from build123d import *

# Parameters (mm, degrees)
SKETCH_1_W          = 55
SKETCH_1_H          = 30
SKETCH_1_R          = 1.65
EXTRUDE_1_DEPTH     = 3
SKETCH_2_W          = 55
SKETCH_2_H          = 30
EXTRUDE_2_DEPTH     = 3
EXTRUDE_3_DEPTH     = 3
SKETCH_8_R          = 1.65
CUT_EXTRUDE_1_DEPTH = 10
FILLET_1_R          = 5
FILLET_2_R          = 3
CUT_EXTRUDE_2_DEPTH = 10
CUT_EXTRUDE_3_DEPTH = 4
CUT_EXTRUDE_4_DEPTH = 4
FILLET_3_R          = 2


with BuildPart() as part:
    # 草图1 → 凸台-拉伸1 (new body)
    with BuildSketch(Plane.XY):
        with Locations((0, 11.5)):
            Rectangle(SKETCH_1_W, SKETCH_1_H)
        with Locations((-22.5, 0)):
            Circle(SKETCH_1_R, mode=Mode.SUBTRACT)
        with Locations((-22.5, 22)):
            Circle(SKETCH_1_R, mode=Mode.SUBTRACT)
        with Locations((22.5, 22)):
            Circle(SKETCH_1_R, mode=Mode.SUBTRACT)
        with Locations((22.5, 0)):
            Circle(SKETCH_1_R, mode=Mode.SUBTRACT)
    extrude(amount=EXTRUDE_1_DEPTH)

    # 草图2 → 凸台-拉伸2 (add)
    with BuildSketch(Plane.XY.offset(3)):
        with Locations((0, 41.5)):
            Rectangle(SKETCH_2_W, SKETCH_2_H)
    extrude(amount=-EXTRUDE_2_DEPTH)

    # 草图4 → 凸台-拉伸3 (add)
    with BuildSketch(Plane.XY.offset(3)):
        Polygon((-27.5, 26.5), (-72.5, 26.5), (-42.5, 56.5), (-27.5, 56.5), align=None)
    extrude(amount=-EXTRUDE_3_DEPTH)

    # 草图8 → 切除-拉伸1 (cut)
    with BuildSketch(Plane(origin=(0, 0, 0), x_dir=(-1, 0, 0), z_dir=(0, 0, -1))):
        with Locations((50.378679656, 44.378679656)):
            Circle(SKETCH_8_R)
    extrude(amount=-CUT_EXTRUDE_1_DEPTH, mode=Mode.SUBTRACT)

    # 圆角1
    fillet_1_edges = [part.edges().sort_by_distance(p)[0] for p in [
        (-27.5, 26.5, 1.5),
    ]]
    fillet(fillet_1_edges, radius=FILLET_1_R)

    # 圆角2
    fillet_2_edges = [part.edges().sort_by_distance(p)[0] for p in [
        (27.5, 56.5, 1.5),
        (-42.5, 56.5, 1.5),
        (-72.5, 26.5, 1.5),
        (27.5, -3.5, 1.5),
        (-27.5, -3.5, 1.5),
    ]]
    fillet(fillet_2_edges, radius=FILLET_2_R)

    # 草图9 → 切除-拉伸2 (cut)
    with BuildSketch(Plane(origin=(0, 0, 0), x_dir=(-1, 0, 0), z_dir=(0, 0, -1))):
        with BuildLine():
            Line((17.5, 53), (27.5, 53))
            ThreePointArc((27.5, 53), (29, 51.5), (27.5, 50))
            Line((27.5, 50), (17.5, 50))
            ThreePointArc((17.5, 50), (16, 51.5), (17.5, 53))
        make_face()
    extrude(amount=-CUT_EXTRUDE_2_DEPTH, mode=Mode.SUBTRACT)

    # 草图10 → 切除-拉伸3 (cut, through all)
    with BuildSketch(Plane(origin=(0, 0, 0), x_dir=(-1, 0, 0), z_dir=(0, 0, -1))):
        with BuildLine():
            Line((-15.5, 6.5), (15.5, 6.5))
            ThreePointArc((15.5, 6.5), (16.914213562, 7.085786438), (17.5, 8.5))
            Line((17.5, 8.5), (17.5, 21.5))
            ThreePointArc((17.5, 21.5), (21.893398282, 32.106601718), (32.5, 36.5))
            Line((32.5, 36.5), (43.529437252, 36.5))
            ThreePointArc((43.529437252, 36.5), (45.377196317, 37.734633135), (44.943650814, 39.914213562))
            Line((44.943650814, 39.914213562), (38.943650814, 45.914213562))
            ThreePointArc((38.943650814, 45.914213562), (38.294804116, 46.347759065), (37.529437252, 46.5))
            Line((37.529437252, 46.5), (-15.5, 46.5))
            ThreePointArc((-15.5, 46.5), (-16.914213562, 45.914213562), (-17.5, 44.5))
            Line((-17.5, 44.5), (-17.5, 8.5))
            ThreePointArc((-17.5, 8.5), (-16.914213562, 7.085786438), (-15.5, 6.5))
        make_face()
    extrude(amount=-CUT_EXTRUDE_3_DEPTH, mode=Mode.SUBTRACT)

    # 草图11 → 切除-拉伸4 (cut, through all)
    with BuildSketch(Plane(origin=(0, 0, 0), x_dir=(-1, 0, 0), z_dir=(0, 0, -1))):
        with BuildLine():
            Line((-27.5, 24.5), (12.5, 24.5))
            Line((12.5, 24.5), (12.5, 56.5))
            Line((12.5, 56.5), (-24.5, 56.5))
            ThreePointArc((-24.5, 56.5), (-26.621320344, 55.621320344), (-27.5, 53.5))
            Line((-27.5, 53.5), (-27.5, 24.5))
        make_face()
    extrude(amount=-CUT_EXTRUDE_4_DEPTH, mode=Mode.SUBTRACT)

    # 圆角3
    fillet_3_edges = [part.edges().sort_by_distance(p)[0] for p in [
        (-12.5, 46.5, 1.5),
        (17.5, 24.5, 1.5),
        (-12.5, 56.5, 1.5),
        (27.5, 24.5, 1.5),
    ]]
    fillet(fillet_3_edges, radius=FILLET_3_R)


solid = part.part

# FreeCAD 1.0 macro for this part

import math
import FreeCAD as App
import Part
import Sketcher
from FreeCAD import Vector
Q = App.Units.Quantity


def edges_at(feature, points):
    """Names of the edges that pass closest to the given points."""
    edges = feature.Shape.Edges
    near = lambda p: min(range(len(edges)), key=lambda i: edges[i].distToShape(Part.Vertex(*p))[0])
    return sorted({f"Edge{near(p) + 1}" for p in points})

doc = App.newDocument("Part")
body = doc.addObject("PartDesign::Body", "Body")

# Sketch on XY plane
sketch1 = body.newObject("Sketcher::SketchObject", "Sketch")
sketch1.AttachmentSupport = (doc.getObject("XY_Plane"), [""])
sketch1.MapMode = "FlatFace"
sketch1.addGeometry(Part.LineSegment(Vector(-27.5, 26.5, 0), Vector(-27.5, -3.5, 0)), False)
sketch1.addGeometry(Part.LineSegment(Vector(-27.5, -3.5, 0), Vector(27.5, -3.5, 0)), False)
sketch1.addGeometry(Part.LineSegment(Vector(27.5, -3.5, 0), Vector(27.5, 26.5, 0)), False)
sketch1.addGeometry(Part.LineSegment(Vector(27.5, 26.5, 0), Vector(-27.5, 26.5, 0)), False)
sketch1.addGeometry(Part.Circle(Vector(-22.5, 0, 0), Vector(0, 0, 1), 1.65), False)
sketch1.addGeometry(Part.Circle(Vector(22.5, 0, 0), Vector(0, 0, 1), 1.65), False)
sketch1.addGeometry(Part.Circle(Vector(-22.5, 22, 0), Vector(0, 0, 1), 1.65), False)
sketch1.addGeometry(Part.Circle(Vector(22.5, 22, 0), Vector(0, 0, 1), 1.65), False)
sketch1.addConstraint(Sketcher.Constraint("Coincident", 0, 2, 1, 1))
sketch1.addConstraint(Sketcher.Constraint("Coincident", 1, 2, 2, 1))
sketch1.addConstraint(Sketcher.Constraint("Coincident", 2, 2, 3, 1))
sketch1.addConstraint(Sketcher.Constraint("Coincident", 3, 2, 0, 1))
sketch1.addConstraint(Sketcher.Constraint("Vertical", 0))
sketch1.addConstraint(Sketcher.Constraint("Horizontal", 1))
sketch1.addConstraint(Sketcher.Constraint("Vertical", 2))
sketch1.addConstraint(Sketcher.Constraint("Horizontal", 3))
sketch1.addConstraint(Sketcher.Constraint("Equal", 4, 5))
sketch1.addConstraint(Sketcher.Constraint("Equal", 5, 6))
sketch1.addConstraint(Sketcher.Constraint("Equal", 6, 7))
sketch1.addConstraint(Sketcher.Constraint("Symmetric", 4, 3, 5, 3, -1, 1))
sketch1.addConstraint(Sketcher.Constraint("Symmetric", 6, 3, 7, 3, -2))
sketch1.addConstraint(Sketcher.Constraint("PointOnObject", 4, 3, -1))
sketch1.addConstraint(Sketcher.Constraint("Vertical", 4, 3, 6, 3))
sketch1.addConstraint(Sketcher.Constraint("Diameter", 4, Q("3.3 mm")))
sketch1.addConstraint(Sketcher.Constraint("DistanceX", 1, 1, 1, 2, Q("55 mm")))
sketch1.addConstraint(Sketcher.Constraint("DistanceY", 0, 2, 0, 1, Q("30 mm")))
sketch1.addConstraint(Sketcher.Constraint("DistanceY", -1, 1, 6, 3, Q("22 mm")))
sketch1.addConstraint(Sketcher.Constraint("DistanceX", 4, 3, 5, 3, Q("45 mm")))
sketch1.addConstraint(Sketcher.Constraint("DistanceX", 0, 2, 4, 3, Q("5 mm")))
sketch1.addConstraint(Sketcher.Constraint("DistanceY", 0, 2, -1, 1, Q("3.5 mm")))
pad1 = body.newObject("PartDesign::Pad", "Pad")
pad1.Profile = sketch1
pad1.Length = 3

# Sketch on XY plane
sketch2 = body.newObject("Sketcher::SketchObject", "Sketch001")
sketch2.AttachmentSupport = (doc.getObject("XY_Plane"), [""])
sketch2.MapMode = "FlatFace"
sketch2.AttachmentOffset = App.Placement(Vector(0, 0, 3), App.Rotation())
sketch2.addGeometry(Part.LineSegment(Vector(-27.5, 56.5, 0), Vector(-27.5, 26.5, 0)), False)
sketch2.addGeometry(Part.LineSegment(Vector(-27.5, 26.5, 0), Vector(27.5, 26.5, 0)), False)
sketch2.addGeometry(Part.LineSegment(Vector(27.5, 26.5, 0), Vector(27.5, 56.5, 0)), False)
sketch2.addGeometry(Part.LineSegment(Vector(27.5, 56.5, 0), Vector(-27.5, 56.5, 0)), False)
sketch2.addConstraint(Sketcher.Constraint("Coincident", 0, 2, 1, 1))
sketch2.addConstraint(Sketcher.Constraint("Coincident", 1, 2, 2, 1))
sketch2.addConstraint(Sketcher.Constraint("Coincident", 2, 2, 3, 1))
sketch2.addConstraint(Sketcher.Constraint("Coincident", 3, 2, 0, 1))
sketch2.addConstraint(Sketcher.Constraint("Vertical", 0))
sketch2.addConstraint(Sketcher.Constraint("Horizontal", 1))
sketch2.addConstraint(Sketcher.Constraint("Vertical", 2))
sketch2.addConstraint(Sketcher.Constraint("Horizontal", 3))
sketch2.addConstraint(Sketcher.Constraint("DistanceX", 1, 1, 1, 2, Q("55 mm")))
sketch2.addConstraint(Sketcher.Constraint("DistanceY", 0, 2, 0, 1, Q("30 mm")))
sketch2.addConstraint(Sketcher.Constraint("DistanceX", 0, 2, -1, 1, Q("27.5 mm")))
sketch2.addConstraint(Sketcher.Constraint("DistanceY", -1, 1, 0, 2, Q("26.5 mm")))
pad2 = body.newObject("PartDesign::Pad", "Pad001")
pad2.Profile = sketch2
pad2.Length = 3
pad2.Reversed = True

# Sketch on XY plane
sketch3 = body.newObject("Sketcher::SketchObject", "Sketch002")
sketch3.AttachmentSupport = (doc.getObject("XY_Plane"), [""])
sketch3.MapMode = "FlatFace"
sketch3.AttachmentOffset = App.Placement(Vector(0, 0, 3), App.Rotation())
sketch3.addGeometry(Part.LineSegment(Vector(-72.5, 26.5, 0), Vector(-27.5, 26.5, 0)), False)
sketch3.addGeometry(Part.LineSegment(Vector(-27.5, 26.5, 0), Vector(-27.5, 56.5, 0)), False)
sketch3.addGeometry(Part.LineSegment(Vector(-27.5, 56.5, 0), Vector(-42.5, 56.5, 0)), False)
sketch3.addGeometry(Part.LineSegment(Vector(-42.5, 56.5, 0), Vector(-72.5, 26.5, 0)), False)
sketch3.addConstraint(Sketcher.Constraint("Coincident", 0, 2, 1, 1))
sketch3.addConstraint(Sketcher.Constraint("Coincident", 1, 2, 2, 1))
sketch3.addConstraint(Sketcher.Constraint("Coincident", 2, 2, 3, 1))
sketch3.addConstraint(Sketcher.Constraint("Coincident", 3, 2, 0, 1))
sketch3.addConstraint(Sketcher.Constraint("Horizontal", 0))
sketch3.addConstraint(Sketcher.Constraint("Vertical", 1))
sketch3.addConstraint(Sketcher.Constraint("Horizontal", 2))
sketch3.addConstraint(Sketcher.Constraint("DistanceX", 0, 1, 0, 2, Q("45 mm")))
sketch3.addConstraint(Sketcher.Constraint("DistanceX", 2, 2, 2, 1, Q("15 mm")))
sketch3.addConstraint(Sketcher.Constraint("DistanceY", 1, 1, 1, 2, Q("30 mm")))
sketch3.addConstraint(Sketcher.Constraint("DistanceX", 0, 2, -1, 1, Q("27.5 mm")))
sketch3.addConstraint(Sketcher.Constraint("DistanceY", -1, 1, 0, 2, Q("26.5 mm")))
pad3 = body.newObject("PartDesign::Pad", "Pad002")
pad3.Profile = sketch3
pad3.Length = 3
pad3.Reversed = True

# Sketch on XY plane
sketch4 = body.newObject("Sketcher::SketchObject", "Sketch003")
sketch4.AttachmentSupport = (doc.getObject("XY_Plane"), [""])
sketch4.MapMode = "FlatFace"
sketch4.addGeometry(Part.Circle(Vector(-50.37868, 44.37868, 0), Vector(0, 0, 1), 1.65), False)
sketch4.addConstraint(Sketcher.Constraint("Diameter", 0, Q("3.3 mm")))
sketch4.addConstraint(Sketcher.Constraint("DistanceX", 0, 3, -1, 1, Q("50.37868 mm")))
sketch4.addConstraint(Sketcher.Constraint("DistanceY", -1, 1, 0, 3, Q("44.37868 mm")))
pocket1 = body.newObject("PartDesign::Pocket", "Pocket")
pocket1.Profile = sketch4
pocket1.Length = 10
pocket1.Reversed = True
doc.recompute()

fillet = body.newObject("PartDesign::Fillet", "Fillet")
fillet.Base = (pocket1, edges_at(pocket1, [(-27.5, 26.5, 1.5)]))
fillet.Radius = 5
doc.recompute()

fillet2 = body.newObject("PartDesign::Fillet", "Fillet001")
fillet2.Base = (fillet, edges_at(fillet, [
    (27.5, 56.5, 1.5),
    (-42.5, 56.5, 1.5),
    (-72.5, 26.5, 1.5),
    (27.5, -3.5, 1.5),
    (-27.5, -3.5, 1.5),
]))
fillet2.Radius = 3

# Sketch on XY plane
sketch5 = body.newObject("Sketcher::SketchObject", "Sketch004")
sketch5.AttachmentSupport = (doc.getObject("XY_Plane"), [""])
sketch5.MapMode = "FlatFace"
sketch5.addGeometry(Part.LineSegment(Vector(-27.5, 53, 0), Vector(-17.5, 53, 0)), False)
sketch5.addGeometry(Part.ArcOfCircle(Part.Circle(Vector(-17.5, 51.5, 0), Vector(0, 0, 1), 1.5), math.radians(-90), math.radians(90)), False)
sketch5.addGeometry(Part.LineSegment(Vector(-17.5, 50, 0), Vector(-27.5, 50, 0)), False)
sketch5.addGeometry(Part.ArcOfCircle(Part.Circle(Vector(-27.5, 51.5, 0), Vector(0, 0, 1), 1.5), math.radians(90), math.radians(270)), False)
sketch5.addConstraint(Sketcher.Constraint("Tangent", 0, 2, 1, 2))
sketch5.addConstraint(Sketcher.Constraint("Tangent", 1, 1, 2, 1))
sketch5.addConstraint(Sketcher.Constraint("Tangent", 2, 2, 3, 2))
sketch5.addConstraint(Sketcher.Constraint("Tangent", 3, 1, 0, 1))
sketch5.addConstraint(Sketcher.Constraint("Horizontal", 0))
sketch5.addConstraint(Sketcher.Constraint("Horizontal", 2))
sketch5.addConstraint(Sketcher.Constraint("Radius", 1, Q("1.5 mm")))
sketch5.addConstraint(Sketcher.Constraint("DistanceX", 0, 1, 0, 2, Q("10 mm")))
sketch5.addConstraint(Sketcher.Constraint("DistanceY", -1, 1, 0, 2, Q("53 mm")))
sketch5.addConstraint(Sketcher.Constraint("DistanceX", 1, 3, -1, 1, Q("17.5 mm")))
pocket2 = body.newObject("PartDesign::Pocket", "Pocket001")
pocket2.Profile = sketch5
pocket2.Length = 10
pocket2.Reversed = True

# Sketch on XY plane
sketch6 = body.newObject("Sketcher::SketchObject", "Sketch005")
sketch6.AttachmentSupport = (doc.getObject("XY_Plane"), [""])
sketch6.MapMode = "FlatFace"
sketch6.addGeometry(Part.LineSegment(Vector(15.5, 6.5, 0), Vector(-15.5, 6.5, 0)), False)
sketch6.addGeometry(Part.ArcOfCircle(Part.Circle(Vector(-15.5, 8.5, 0), Vector(0, 0, 1), 2), math.radians(-180), math.radians(-90)), False)
sketch6.addGeometry(Part.LineSegment(Vector(-17.5, 8.5, 0), Vector(-17.5, 21.5, 0)), False)
sketch6.addGeometry(Part.ArcOfCircle(Part.Circle(Vector(-32.5, 21.5, 0), Vector(0, 0, 1), 15), math.radians(0), math.radians(90)), False)
sketch6.addGeometry(Part.LineSegment(Vector(-32.5, 36.5, 0), Vector(-43.529437, 36.5, 0)), False)
sketch6.addGeometry(Part.ArcOfCircle(Part.Circle(Vector(-43.529437, 38.5, 0), Vector(0, 0, 1), 2), math.radians(135), math.radians(270)), False)
sketch6.addGeometry(Part.LineSegment(Vector(-44.943651, 39.914214, 0), Vector(-38.943651, 45.914214, 0)), False)
sketch6.addGeometry(Part.ArcOfCircle(Part.Circle(Vector(-37.529437, 44.5, 0), Vector(0, 0, 1), 2), math.radians(90), math.radians(135)), False)
sketch6.addGeometry(Part.LineSegment(Vector(-37.529437, 46.5, 0), Vector(15.5, 46.5, 0)), False)
sketch6.addGeometry(Part.ArcOfCircle(Part.Circle(Vector(15.5, 44.5, 0), Vector(0, 0, 1), 2), math.radians(0), math.radians(90)), False)
sketch6.addGeometry(Part.LineSegment(Vector(17.5, 44.5, 0), Vector(17.5, 8.5, 0)), False)
sketch6.addGeometry(Part.ArcOfCircle(Part.Circle(Vector(15.5, 8.5, 0), Vector(0, 0, 1), 2), math.radians(-90), math.radians(0)), False)
sketch6.addConstraint(Sketcher.Constraint("Tangent", 0, 2, 1, 2))
sketch6.addConstraint(Sketcher.Constraint("Tangent", 1, 1, 2, 1))
sketch6.addConstraint(Sketcher.Constraint("Tangent", 2, 2, 3, 1))
sketch6.addConstraint(Sketcher.Constraint("Tangent", 3, 2, 4, 1))
sketch6.addConstraint(Sketcher.Constraint("Tangent", 4, 2, 5, 2))
sketch6.addConstraint(Sketcher.Constraint("Tangent", 5, 1, 6, 1))
sketch6.addConstraint(Sketcher.Constraint("Tangent", 6, 2, 7, 2))
sketch6.addConstraint(Sketcher.Constraint("Tangent", 7, 1, 8, 1))
sketch6.addConstraint(Sketcher.Constraint("Tangent", 8, 2, 9, 2))
sketch6.addConstraint(Sketcher.Constraint("Tangent", 9, 1, 10, 1))
sketch6.addConstraint(Sketcher.Constraint("Tangent", 10, 2, 11, 2))
sketch6.addConstraint(Sketcher.Constraint("Tangent", 11, 1, 0, 1))
sketch6.addConstraint(Sketcher.Constraint("Horizontal", 0))
sketch6.addConstraint(Sketcher.Constraint("Vertical", 2))
sketch6.addConstraint(Sketcher.Constraint("Horizontal", 4))
sketch6.addConstraint(Sketcher.Constraint("Horizontal", 8))
sketch6.addConstraint(Sketcher.Constraint("Vertical", 10))
sketch6.addConstraint(Sketcher.Constraint("Equal", 1, 5))
sketch6.addConstraint(Sketcher.Constraint("Equal", 5, 7))
sketch6.addConstraint(Sketcher.Constraint("Equal", 7, 9))
sketch6.addConstraint(Sketcher.Constraint("Equal", 9, 11))
sketch6.addConstraint(Sketcher.Constraint("Radius", 1, Q("2 mm")))
sketch6.addConstraint(Sketcher.Constraint("Radius", 3, Q("15 mm")))
sketch6.addConstraint(Sketcher.Constraint("DistanceX", 0, 2, 0, 1, Q("31 mm")))
sketch6.addConstraint(Sketcher.Constraint("DistanceY", 2, 1, 2, 2, Q("13 mm")))
sketch6.addConstraint(Sketcher.Constraint("DistanceY", 10, 2, 10, 1, Q("36 mm")))
sketch6.addConstraint(Sketcher.Constraint("Angle", 6, Q("45 deg")))
sketch6.addConstraint(Sketcher.Constraint("DistanceX", 1, 3, -1, 1, Q("15.5 mm")))
sketch6.addConstraint(Sketcher.Constraint("DistanceY", -1, 1, 1, 3, Q("8.5 mm")))
sketch6.addConstraint(Sketcher.Constraint("DistanceX", 4, 2, 4, 1, Q("11.029437 mm")))
pocket3 = body.newObject("PartDesign::Pocket", "Pocket002")
pocket3.Profile = sketch6
pocket3.Type = "ThroughAll"
pocket3.Reversed = True

# Sketch on XY plane
sketch7 = body.newObject("Sketcher::SketchObject", "Sketch006")
sketch7.AttachmentSupport = (doc.getObject("XY_Plane"), [""])
sketch7.MapMode = "FlatFace"
sketch7.addGeometry(Part.LineSegment(Vector(27.5, 24.5, 0), Vector(-12.5, 24.5, 0)), False)
sketch7.addGeometry(Part.LineSegment(Vector(-12.5, 24.5, 0), Vector(-12.5, 56.5, 0)), False)
sketch7.addGeometry(Part.LineSegment(Vector(-12.5, 56.5, 0), Vector(24.5, 56.5, 0)), False)
sketch7.addGeometry(Part.ArcOfCircle(Part.Circle(Vector(24.5, 53.5, 0), Vector(0, 0, 1), 3), math.radians(0), math.radians(90)), False)
sketch7.addGeometry(Part.LineSegment(Vector(27.5, 53.5, 0), Vector(27.5, 24.5, 0)), False)
sketch7.addConstraint(Sketcher.Constraint("Coincident", 0, 2, 1, 1))
sketch7.addConstraint(Sketcher.Constraint("Coincident", 1, 2, 2, 1))
sketch7.addConstraint(Sketcher.Constraint("Tangent", 2, 2, 3, 2))
sketch7.addConstraint(Sketcher.Constraint("Tangent", 3, 1, 4, 1))
sketch7.addConstraint(Sketcher.Constraint("Coincident", 4, 2, 0, 1))
sketch7.addConstraint(Sketcher.Constraint("Horizontal", 0))
sketch7.addConstraint(Sketcher.Constraint("Vertical", 1))
sketch7.addConstraint(Sketcher.Constraint("Horizontal", 2))
sketch7.addConstraint(Sketcher.Constraint("Vertical", 4))
sketch7.addConstraint(Sketcher.Constraint("Radius", 3, Q("3 mm")))
sketch7.addConstraint(Sketcher.Constraint("DistanceX", 0, 2, 0, 1, Q("40 mm")))
sketch7.addConstraint(Sketcher.Constraint("DistanceY", 1, 1, 1, 2, Q("32 mm")))
sketch7.addConstraint(Sketcher.Constraint("DistanceX", -1, 1, 3, 3, Q("24.5 mm")))
sketch7.addConstraint(Sketcher.Constraint("DistanceY", -1, 1, 3, 3, Q("53.5 mm")))
pocket4 = body.newObject("PartDesign::Pocket", "Pocket003")
pocket4.Profile = sketch7
pocket4.Type = "ThroughAll"
pocket4.Reversed = True
doc.recompute()

fillet3 = body.newObject("PartDesign::Fillet", "Fillet002")
fillet3.Base = (pocket4, edges_at(pocket4, [
    (-12.5, 46.5, 1.5),
    (17.5, 24.5, 1.5),
    (-12.5, 56.5, 1.5),
    (27.5, 24.5, 1.5),
]))
fillet3.Radius = 2

doc.recompute()
